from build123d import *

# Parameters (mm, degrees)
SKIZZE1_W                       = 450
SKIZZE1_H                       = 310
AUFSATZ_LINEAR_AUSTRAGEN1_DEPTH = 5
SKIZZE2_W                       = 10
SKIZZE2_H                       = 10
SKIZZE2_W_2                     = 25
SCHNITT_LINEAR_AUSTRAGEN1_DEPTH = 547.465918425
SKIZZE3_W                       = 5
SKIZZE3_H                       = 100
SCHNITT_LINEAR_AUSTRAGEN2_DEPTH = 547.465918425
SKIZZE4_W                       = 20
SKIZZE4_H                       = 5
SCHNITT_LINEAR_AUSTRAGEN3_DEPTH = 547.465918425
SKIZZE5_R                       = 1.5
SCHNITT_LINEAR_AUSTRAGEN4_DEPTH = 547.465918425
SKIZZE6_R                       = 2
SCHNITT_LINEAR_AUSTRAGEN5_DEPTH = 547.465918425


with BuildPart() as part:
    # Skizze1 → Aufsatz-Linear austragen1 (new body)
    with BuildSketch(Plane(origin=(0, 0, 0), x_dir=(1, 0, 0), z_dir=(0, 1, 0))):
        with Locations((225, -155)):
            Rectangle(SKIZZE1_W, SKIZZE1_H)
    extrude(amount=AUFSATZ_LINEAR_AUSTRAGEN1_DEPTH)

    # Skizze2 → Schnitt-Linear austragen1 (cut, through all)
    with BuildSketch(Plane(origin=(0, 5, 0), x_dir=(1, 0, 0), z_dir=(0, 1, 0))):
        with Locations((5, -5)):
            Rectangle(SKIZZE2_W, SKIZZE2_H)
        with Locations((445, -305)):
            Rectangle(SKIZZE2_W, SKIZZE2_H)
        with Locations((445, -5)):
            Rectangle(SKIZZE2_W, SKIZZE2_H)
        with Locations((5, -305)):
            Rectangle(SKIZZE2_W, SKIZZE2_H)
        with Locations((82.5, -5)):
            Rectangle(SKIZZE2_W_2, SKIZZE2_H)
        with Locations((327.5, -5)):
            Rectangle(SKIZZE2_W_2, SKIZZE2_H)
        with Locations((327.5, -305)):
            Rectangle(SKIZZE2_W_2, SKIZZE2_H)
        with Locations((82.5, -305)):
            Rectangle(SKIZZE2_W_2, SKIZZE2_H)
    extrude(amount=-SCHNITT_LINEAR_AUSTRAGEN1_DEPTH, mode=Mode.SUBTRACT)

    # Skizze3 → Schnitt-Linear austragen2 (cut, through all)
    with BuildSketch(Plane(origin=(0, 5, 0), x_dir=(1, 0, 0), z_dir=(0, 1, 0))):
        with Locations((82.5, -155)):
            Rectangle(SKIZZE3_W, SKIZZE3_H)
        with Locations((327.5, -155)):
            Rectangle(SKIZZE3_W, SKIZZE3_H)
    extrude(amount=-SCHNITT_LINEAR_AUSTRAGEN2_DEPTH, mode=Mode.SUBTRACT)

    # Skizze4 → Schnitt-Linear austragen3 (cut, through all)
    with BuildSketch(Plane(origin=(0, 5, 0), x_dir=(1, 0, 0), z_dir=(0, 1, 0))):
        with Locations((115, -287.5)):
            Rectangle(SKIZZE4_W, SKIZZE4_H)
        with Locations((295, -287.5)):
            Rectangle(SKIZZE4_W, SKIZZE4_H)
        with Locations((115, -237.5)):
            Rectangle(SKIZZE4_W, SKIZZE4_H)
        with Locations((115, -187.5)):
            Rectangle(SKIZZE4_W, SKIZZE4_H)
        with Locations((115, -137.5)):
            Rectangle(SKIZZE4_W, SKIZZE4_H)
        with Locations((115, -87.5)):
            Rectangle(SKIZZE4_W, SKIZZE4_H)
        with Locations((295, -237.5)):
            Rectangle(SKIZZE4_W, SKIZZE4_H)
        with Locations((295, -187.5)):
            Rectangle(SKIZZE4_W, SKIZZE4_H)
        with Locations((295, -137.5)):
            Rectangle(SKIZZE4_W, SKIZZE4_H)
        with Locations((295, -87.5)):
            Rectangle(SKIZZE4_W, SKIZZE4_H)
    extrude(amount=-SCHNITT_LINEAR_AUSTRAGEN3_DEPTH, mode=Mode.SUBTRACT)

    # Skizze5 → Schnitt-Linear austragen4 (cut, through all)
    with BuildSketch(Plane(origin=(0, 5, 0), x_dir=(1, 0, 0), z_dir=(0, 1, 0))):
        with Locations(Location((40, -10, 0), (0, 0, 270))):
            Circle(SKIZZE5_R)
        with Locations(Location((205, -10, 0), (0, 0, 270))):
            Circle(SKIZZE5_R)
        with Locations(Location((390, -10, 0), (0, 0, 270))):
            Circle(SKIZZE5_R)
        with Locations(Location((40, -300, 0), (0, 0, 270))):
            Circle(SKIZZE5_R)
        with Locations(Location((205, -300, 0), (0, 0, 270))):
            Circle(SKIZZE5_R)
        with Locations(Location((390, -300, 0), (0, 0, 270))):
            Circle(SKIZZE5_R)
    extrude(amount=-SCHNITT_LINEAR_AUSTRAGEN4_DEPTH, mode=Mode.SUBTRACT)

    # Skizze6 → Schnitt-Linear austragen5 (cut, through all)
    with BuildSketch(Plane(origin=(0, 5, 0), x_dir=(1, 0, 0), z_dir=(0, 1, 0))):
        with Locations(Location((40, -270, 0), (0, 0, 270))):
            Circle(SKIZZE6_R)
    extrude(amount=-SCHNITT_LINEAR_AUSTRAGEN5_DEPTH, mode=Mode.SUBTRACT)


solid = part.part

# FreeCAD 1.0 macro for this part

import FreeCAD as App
import Part
import Sketcher

V = App.Vector
Q = App.Units.Quantity


def add_polygon(sketch, points):
    """Adds a closed chain of lines whose ends are joined by coincident constraints."""
    first, n = sketch.GeometryCount, len(points)
    for a, b in zip(points, points[1:] + points[:1]):
        sketch.addGeometry(Part.LineSegment(App.Vector(*a, 0), App.Vector(*b, 0)), False)
    for i in range(n):
        sketch.addConstraint(Sketcher.Constraint("Coincident", first + i, 2, first + (i + 1) % n, 1))

doc = App.newDocument("Part")
params = doc.addObject("Spreadsheet::Sheet", "Params")
for row, (alias, value) in enumerate([
    ("sketch1_width", "450 mm"),
    ("sketch1_height", "310 mm"),
    ("pad1_length", "5 mm"),
    ("sketch2_width", "10 mm"),
    ("sketch2_width2", "25 mm"),
    ("sketch3_width", "5 mm"),
    ("sketch3_height", "100 mm"),
    ("sketch4_width", "20 mm"),
    ("sketch4_height", "5 mm"),
    ("sketch5_diameter", "3 mm"),
    ("sketch6_diameter", "4 mm"),
], start=1):
    params.set(f"A{row}", alias)
    params.set(f"B{row}", "=" + value)
    params.setAlias(f"B{row}", alias)

body = doc.addObject("PartDesign::Body", "Body")

# Sketch on XZ plane
sketch1 = doc.addObject("Sketcher::SketchObject", "Sketch")
body.addObject(sketch1)
sketch1.AttachmentSupport = (doc.XZ_Plane, [""])
sketch1.MapMode = "FlatFace"
add_polygon(sketch1, [(0, 0), (0, 310), (450, 310), (450, 0)])  # lines 0-3
sketch1.addConstraint([
    Sketcher.Constraint("Vertical", 0),
    Sketcher.Constraint("Horizontal", 1),
    Sketcher.Constraint("Vertical", 2),
    Sketcher.Constraint("Horizontal", 3),
    Sketcher.Constraint("Coincident", 3, 2, -1, 1),
    Sketcher.Constraint("DistanceX", 1, 1, 1, 2, Q("450 mm")),
    Sketcher.Constraint("DistanceY", 0, 1, 0, 2, Q("310 mm")),
])
sketch1.setExpression("Constraints[9]", "Params.sketch1_width")
sketch1.setExpression("Constraints[10]", "Params.sketch1_height")
pad1 = doc.addObject("PartDesign::Pad", "Pad")
body.addObject(pad1)
pad1.Profile = sketch1
pad1.setExpression("Length", "Params.pad1_length")
pad1.Reversed = True

# Sketch on XZ plane
sketch2 = doc.addObject("Sketcher::SketchObject", "Sketch001")
body.addObject(sketch2)
sketch2.AttachmentSupport = (doc.XZ_Plane, [""])
sketch2.MapMode = "FlatFace"
sketch2.AttachmentOffset = App.Placement(V(0, 0, -5), App.Rotation())
add_polygon(sketch2, [(0, 0), (0, 10), (10, 10), (10, 0)])  # lines 0-3
add_polygon(sketch2, [(440, 300), (440, 310), (450, 310), (450, 300)])  # lines 4-7
add_polygon(sketch2, [(440, 0), (440, 10), (450, 10), (450, 0)])  # lines 8-11
add_polygon(sketch2, [(0, 300), (0, 310), (10, 310), (10, 300)])  # lines 12-15
add_polygon(sketch2, [(70, 0), (70, 10), (95, 10), (95, 0)])  # lines 16-19
add_polygon(sketch2, [(315, 0), (315, 10), (340, 10), (340, 0)])  # lines 20-23
add_polygon(sketch2, [(315, 300), (315, 310), (340, 310), (340, 300)])  # lines 24-27
add_polygon(sketch2, [(70, 300), (70, 310), (95, 310), (95, 300)])  # lines 28-31
sketch2.addConstraint([
    Sketcher.Constraint("Vertical", 0),
    Sketcher.Constraint("Horizontal", 1),
    Sketcher.Constraint("Vertical", 2),
    Sketcher.Constraint("Horizontal", 3),
    Sketcher.Constraint("Vertical", 4),
    Sketcher.Constraint("Horizontal", 5),
    Sketcher.Constraint("Vertical", 6),
    Sketcher.Constraint("Horizontal", 7),
    Sketcher.Constraint("Vertical", 8),
    Sketcher.Constraint("Horizontal", 9),
    Sketcher.Constraint("Vertical", 10),
    Sketcher.Constraint("Horizontal", 11),
    Sketcher.Constraint("Vertical", 12),
    Sketcher.Constraint("Horizontal", 13),
    Sketcher.Constraint("Vertical", 14),
    Sketcher.Constraint("Horizontal", 15),
    Sketcher.Constraint("Vertical", 16),
    Sketcher.Constraint("Horizontal", 17),
    Sketcher.Constraint("Vertical", 18),
    Sketcher.Constraint("Horizontal", 19),
    Sketcher.Constraint("Vertical", 20),
    Sketcher.Constraint("Horizontal", 21),
    Sketcher.Constraint("Vertical", 22),
    Sketcher.Constraint("Horizontal", 23),
    Sketcher.Constraint("Vertical", 24),
    Sketcher.Constraint("Horizontal", 25),
    Sketcher.Constraint("Vertical", 26),
    Sketcher.Constraint("Horizontal", 27),
    Sketcher.Constraint("Vertical", 28),
    Sketcher.Constraint("Horizontal", 29),
    Sketcher.Constraint("Vertical", 30),
    Sketcher.Constraint("Horizontal", 31),
    Sketcher.Constraint("Coincident", 3, 2, -1, 1),
    Sketcher.Constraint("PointOnObject", 10, 2, -1),
    Sketcher.Constraint("PointOnObject", 12, 2, -2),
    Sketcher.Constraint("PointOnObject", 18, 2, -1),
    Sketcher.Constraint("PointOnObject", 22, 2, -1),
    Sketcher.Constraint("Horizontal", 1, 2, 8, 2),
    Sketcher.Constraint("Horizontal", 5, 2, 12, 2),
    Sketcher.Constraint("Horizontal", 7, 2, 14, 2),
    Sketcher.Constraint("Horizontal", 9, 2, 16, 2),
    Sketcher.Constraint("Horizontal", 17, 2, 20, 2),
    Sketcher.Constraint("Horizontal", 13, 2, 24, 2),
    Sketcher.Constraint("Horizontal", 15, 2, 26, 2),
    Sketcher.Constraint("Horizontal", 25, 2, 28, 2),
    Sketcher.Constraint("Horizontal", 27, 2, 30, 2),
    Sketcher.Constraint("Vertical", 7, 2, 8, 2),
    Sketcher.Constraint("Vertical", 6, 2, 9, 2),
    Sketcher.Constraint("Vertical", 2, 2, 13, 2),
    Sketcher.Constraint("Vertical", 23, 2, 24, 2),
    Sketcher.Constraint("Vertical", 22, 2, 25, 2),
    Sketcher.Constraint("Vertical", 19, 2, 28, 2),
    Sketcher.Constraint("Vertical", 18, 2, 29, 2),
    Sketcher.Constraint("Equal", 3, 5),
    Sketcher.Constraint("Equal", 19, 21),
    Sketcher.Constraint("Equal", 15, 0),
    Sketcher.Constraint("Equal", 2, 4),
    Sketcher.Constraint("DistanceX", 1, 1, 1, 2, Q("10 mm")),
    Sketcher.Constraint("DistanceX", 17, 1, 17, 2, Q("25 mm")),
    Sketcher.Constraint("DistanceX", -1, 1, 4, 2, Q("440 mm")),
    Sketcher.Constraint("DistanceY", -1, 1, 4, 2, Q("310 mm")),
    Sketcher.Constraint("DistanceX", -1, 1, 16, 2, Q("70 mm")),
    Sketcher.Constraint("DistanceX", -1, 1, 20, 2, Q("315 mm")),
])
sketch2.setExpression("Constraints[89]", "Params.sketch2_width")
sketch2.setExpression("Constraints[90]", "Params.sketch2_width2")
pocket1 = doc.addObject("PartDesign::Pocket", "Pocket")
body.addObject(pocket1)
pocket1.Profile = sketch2
pocket1.Type = "ThroughAll"
pocket1.Reversed = True

# Sketch on XZ plane
sketch3 = doc.addObject("Sketcher::SketchObject", "Sketch002")
body.addObject(sketch3)
sketch3.AttachmentSupport = (doc.XZ_Plane, [""])
sketch3.MapMode = "FlatFace"
sketch3.AttachmentOffset = App.Placement(V(0, 0, -5), App.Rotation())
add_polygon(sketch3, [(80, 105), (80, 205), (85, 205), (85, 105)])  # lines 0-3
add_polygon(sketch3, [(325, 105), (325, 205), (330, 205), (330, 105)])  # lines 4-7
sketch3.addConstraint([
    Sketcher.Constraint("Vertical", 0),
    Sketcher.Constraint("Horizontal", 1),
    Sketcher.Constraint("Vertical", 2),
    Sketcher.Constraint("Horizontal", 3),
    Sketcher.Constraint("Vertical", 4),
    Sketcher.Constraint("Horizontal", 5),
    Sketcher.Constraint("Vertical", 6),
    Sketcher.Constraint("Horizontal", 7),
    Sketcher.Constraint("Horizontal", 1, 2, 4, 2),
    Sketcher.Constraint("Horizontal", 3, 2, 6, 2),
    Sketcher.Constraint("Equal", 3, 5),
    Sketcher.Constraint("DistanceX", 1, 1, 1, 2, Q("5 mm")),
    Sketcher.Constraint("DistanceY", 0, 1, 0, 2, Q("100 mm")),
    Sketcher.Constraint("DistanceX", -1, 1, 0, 2, Q("80 mm")),
    Sketcher.Constraint("DistanceY", -1, 1, 0, 2, Q("205 mm")),
    Sketcher.Constraint("DistanceX", -1, 1, 4, 2, Q("325 mm")),
])
sketch3.setExpression("Constraints[19]", "Params.sketch3_width")
sketch3.setExpression("Constraints[20]", "Params.sketch3_height")
pocket2 = doc.addObject("PartDesign::Pocket", "Pocket001")
body.addObject(pocket2)
pocket2.Profile = sketch3
pocket2.Type = "ThroughAll"
pocket2.Reversed = True

# Sketch on XZ plane
sketch4 = doc.addObject("Sketcher::SketchObject", "Sketch003")
body.addObject(sketch4)
sketch4.AttachmentSupport = (doc.XZ_Plane, [""])
sketch4.MapMode = "FlatFace"
sketch4.AttachmentOffset = App.Placement(V(0, 0, -5), App.Rotation())
add_polygon(sketch4, [(105, 285), (105, 290), (125, 290), (125, 285)])  # lines 0-3
add_polygon(sketch4, [(285, 285), (285, 290), (305, 290), (305, 285)])  # lines 4-7
add_polygon(sketch4, [(105, 235), (105, 240), (125, 240), (125, 235)])  # lines 8-11
add_polygon(sketch4, [(105, 185), (105, 190), (125, 190), (125, 185)])  # lines 12-15
add_polygon(sketch4, [(105, 135), (105, 140), (125, 140), (125, 135)])  # lines 16-19
add_polygon(sketch4, [(105, 85), (105, 90), (125, 90), (125, 85)])  # lines 20-23
add_polygon(sketch4, [(285, 235), (285, 240), (305, 240), (305, 235)])  # lines 24-27
add_polygon(sketch4, [(285, 185), (285, 190), (305, 190), (305, 185)])  # lines 28-31
add_polygon(sketch4, [(285, 135), (285, 140), (305, 140), (305, 135)])  # lines 32-35
add_polygon(sketch4, [(285, 85), (285, 90), (305, 90), (305, 85)])  # lines 36-39
sketch4.addConstraint([
    Sketcher.Constraint("Vertical", 0),
    Sketcher.Constraint("Horizontal", 1),
    Sketcher.Constraint("Vertical", 2),
    Sketcher.Constraint("Horizontal", 3),
    Sketcher.Constraint("Vertical", 4),
    Sketcher.Constraint("Horizontal", 5),
    Sketcher.Constraint("Vertical", 6),
    Sketcher.Constraint("Horizontal", 7),
    Sketcher.Constraint("Vertical", 8),
    Sketcher.Constraint("Horizontal", 9),
    Sketcher.Constraint("Vertical", 10),
    Sketcher.Constraint("Horizontal", 11),
    Sketcher.Constraint("Vertical", 12),
    Sketcher.Constraint("Horizontal", 13),
    Sketcher.Constraint("Vertical", 14),
    Sketcher.Constraint("Horizontal", 15),
    Sketcher.Constraint("Vertical", 16),
    Sketcher.Constraint("Horizontal", 17),
    Sketcher.Constraint("Vertical", 18),
    Sketcher.Constraint("Horizontal", 19),
    Sketcher.Constraint("Vertical", 20),
    Sketcher.Constraint("Horizontal", 21),
    Sketcher.Constraint("Vertical", 22),
    Sketcher.Constraint("Horizontal", 23),
    Sketcher.Constraint("Vertical", 24),
    Sketcher.Constraint("Horizontal", 25),
    Sketcher.Constraint("Vertical", 26),
    Sketcher.Constraint("Horizontal", 27),
    Sketcher.Constraint("Vertical", 28),
    Sketcher.Constraint("Horizontal", 29),
    Sketcher.Constraint("Vertical", 30),
    Sketcher.Constraint("Horizontal", 31),
    Sketcher.Constraint("Vertical", 32),
    Sketcher.Constraint("Horizontal", 33),
    Sketcher.Constraint("Vertical", 34),
    Sketcher.Constraint("Horizontal", 35),
    Sketcher.Constraint("Vertical", 36),
    Sketcher.Constraint("Horizontal", 37),
    Sketcher.Constraint("Vertical", 38),
    Sketcher.Constraint("Horizontal", 39),
    Sketcher.Constraint("Horizontal", 1, 2, 4, 2),
    Sketcher.Constraint("Horizontal", 3, 2, 6, 2),
    Sketcher.Constraint("Horizontal", 9, 2, 24, 2),
    Sketcher.Constraint("Horizontal", 11, 2, 26, 2),
    Sketcher.Constraint("Horizontal", 13, 2, 28, 2),
    Sketcher.Constraint("Horizontal", 15, 2, 30, 2),
    Sketcher.Constraint("Horizontal", 17, 2, 32, 2),
    Sketcher.Constraint("Horizontal", 19, 2, 34, 2),
    Sketcher.Constraint("Horizontal", 21, 2, 36, 2),
    Sketcher.Constraint("Horizontal", 23, 2, 38, 2),
    Sketcher.Constraint("Vertical", 3, 2, 8, 2),
    Sketcher.Constraint("Vertical", 2, 2, 9, 2),
    Sketcher.Constraint("Vertical", 11, 2, 12, 2),
    Sketcher.Constraint("Vertical", 10, 2, 13, 2),
    Sketcher.Constraint("Vertical", 15, 2, 16, 2),
    Sketcher.Constraint("Vertical", 14, 2, 17, 2),
    Sketcher.Constraint("Vertical", 19, 2, 20, 2),
    Sketcher.Constraint("Vertical", 18, 2, 21, 2),
    Sketcher.Constraint("Vertical", 7, 2, 24, 2),
    Sketcher.Constraint("Vertical", 6, 2, 25, 2),
    Sketcher.Constraint("Vertical", 27, 2, 28, 2),
    Sketcher.Constraint("Vertical", 26, 2, 29, 2),
    Sketcher.Constraint("Vertical", 31, 2, 32, 2),
    Sketcher.Constraint("Vertical", 30, 2, 33, 2),
    Sketcher.Constraint("Vertical", 35, 2, 36, 2),
    Sketcher.Constraint("Vertical", 34, 2, 37, 2),
    Sketcher.Constraint("Equal", 3, 5),
    Sketcher.Constraint("Equal", 6, 8),
    Sketcher.Constraint("Equal", 10, 12),
    Sketcher.Constraint("Equal", 14, 16),
    Sketcher.Constraint("Equal", 18, 20),
    Sketcher.Constraint("DistanceX", 1, 1, 1, 2, Q("20 mm")),
    Sketcher.Constraint("DistanceY", 0, 1, 0, 2, Q("5 mm")),
    Sketcher.Constraint("DistanceX", -1, 1, 0, 2, Q("105 mm")),
    Sketcher.Constraint("DistanceY", -1, 1, 0, 2, Q("290 mm")),
    Sketcher.Constraint("DistanceX", -1, 1, 4, 2, Q("285 mm")),
    Sketcher.Constraint("DistanceY", -1, 1, 8, 2, Q("240 mm")),
    Sketcher.Constraint("DistanceY", -1, 1, 12, 2, Q("190 mm")),
    Sketcher.Constraint("DistanceY", -1, 1, 16, 2, Q("140 mm")),
    Sketcher.Constraint("DistanceY", -1, 1, 20, 2, Q("90 mm")),
])
sketch4.setExpression("Constraints[111]", "Params.sketch4_width")
sketch4.setExpression("Constraints[112]", "Params.sketch4_height")
pocket3 = doc.addObject("PartDesign::Pocket", "Pocket002")
body.addObject(pocket3)
pocket3.Profile = sketch4
pocket3.Type = "ThroughAll"
pocket3.Reversed = True

# Sketch on XZ plane
sketch5 = doc.addObject("Sketcher::SketchObject", "Sketch004")
body.addObject(sketch5)
sketch5.AttachmentSupport = (doc.XZ_Plane, [""])
sketch5.MapMode = "FlatFace"
sketch5.AttachmentOffset = App.Placement(V(0, 0, -5), App.Rotation())
sketch5.addGeometry([
    Part.Circle(V(40, 10, 0), V(0, 0, 1), 1.5),  # 0
    Part.Circle(V(205, 10, 0), V(0, 0, 1), 1.5),  # 1
    Part.Circle(V(390, 10, 0), V(0, 0, 1), 1.5),  # 2
    Part.Circle(V(40, 300, 0), V(0, 0, 1), 1.5),  # 3
    Part.Circle(V(205, 300, 0), V(0, 0, 1), 1.5),  # 4
    Part.Circle(V(390, 300, 0), V(0, 0, 1), 1.5),  # 5
], False)
sketch5.addConstraint([
    Sketcher.Constraint("Equal", 0, 1),
    Sketcher.Constraint("Equal", 1, 2),
    Sketcher.Constraint("Equal", 2, 3),
    Sketcher.Constraint("Equal", 3, 4),
    Sketcher.Constraint("Equal", 4, 5),
    Sketcher.Constraint("Horizontal", 0, 3, 1, 3),
    Sketcher.Constraint("Horizontal", 1, 3, 2, 3),
    Sketcher.Constraint("Horizontal", 3, 3, 4, 3),
    Sketcher.Constraint("Horizontal", 4, 3, 5, 3),
    Sketcher.Constraint("Vertical", 0, 3, 3, 3),
    Sketcher.Constraint("Vertical", 1, 3, 4, 3),
    Sketcher.Constraint("Vertical", 2, 3, 5, 3),
    Sketcher.Constraint("Diameter", 0, Q("3 mm")),
    Sketcher.Constraint("DistanceX", -1, 1, 0, 3, Q("40 mm")),
    Sketcher.Constraint("DistanceY", -1, 1, 0, 3, Q("10 mm")),
    Sketcher.Constraint("DistanceX", -1, 1, 1, 3, Q("205 mm")),
    Sketcher.Constraint("DistanceX", -1, 1, 2, 3, Q("390 mm")),
    Sketcher.Constraint("DistanceY", -1, 1, 3, 3, Q("300 mm")),
])
sketch5.setExpression("Constraints[12]", "Params.sketch5_diameter")
pocket4 = doc.addObject("PartDesign::Pocket", "Pocket003")
body.addObject(pocket4)
pocket4.Profile = sketch5
pocket4.Type = "ThroughAll"
pocket4.Reversed = True

# Sketch on XZ plane
sketch6 = doc.addObject("Sketcher::SketchObject", "Sketch005")
body.addObject(sketch6)
sketch6.AttachmentSupport = (doc.XZ_Plane, [""])
sketch6.MapMode = "FlatFace"
sketch6.AttachmentOffset = App.Placement(V(0, 0, -5), App.Rotation())
sketch6.addGeometry(Part.Circle(V(40, 270, 0), V(0, 0, 1), 2), False)
sketch6.addConstraint([
    Sketcher.Constraint("Diameter", 0, Q("4 mm")),
    Sketcher.Constraint("DistanceX", -1, 1, 0, 3, Q("40 mm")),
    Sketcher.Constraint("DistanceY", -1, 1, 0, 3, Q("270 mm")),
])
sketch6.setExpression("Constraints[0]", "Params.sketch6_diameter")
pocket5 = doc.addObject("PartDesign::Pocket", "Pocket004")
body.addObject(pocket5)
pocket5.Profile = sketch6
pocket5.Type = "ThroughAll"
pocket5.Reversed = True

doc.recompute()
